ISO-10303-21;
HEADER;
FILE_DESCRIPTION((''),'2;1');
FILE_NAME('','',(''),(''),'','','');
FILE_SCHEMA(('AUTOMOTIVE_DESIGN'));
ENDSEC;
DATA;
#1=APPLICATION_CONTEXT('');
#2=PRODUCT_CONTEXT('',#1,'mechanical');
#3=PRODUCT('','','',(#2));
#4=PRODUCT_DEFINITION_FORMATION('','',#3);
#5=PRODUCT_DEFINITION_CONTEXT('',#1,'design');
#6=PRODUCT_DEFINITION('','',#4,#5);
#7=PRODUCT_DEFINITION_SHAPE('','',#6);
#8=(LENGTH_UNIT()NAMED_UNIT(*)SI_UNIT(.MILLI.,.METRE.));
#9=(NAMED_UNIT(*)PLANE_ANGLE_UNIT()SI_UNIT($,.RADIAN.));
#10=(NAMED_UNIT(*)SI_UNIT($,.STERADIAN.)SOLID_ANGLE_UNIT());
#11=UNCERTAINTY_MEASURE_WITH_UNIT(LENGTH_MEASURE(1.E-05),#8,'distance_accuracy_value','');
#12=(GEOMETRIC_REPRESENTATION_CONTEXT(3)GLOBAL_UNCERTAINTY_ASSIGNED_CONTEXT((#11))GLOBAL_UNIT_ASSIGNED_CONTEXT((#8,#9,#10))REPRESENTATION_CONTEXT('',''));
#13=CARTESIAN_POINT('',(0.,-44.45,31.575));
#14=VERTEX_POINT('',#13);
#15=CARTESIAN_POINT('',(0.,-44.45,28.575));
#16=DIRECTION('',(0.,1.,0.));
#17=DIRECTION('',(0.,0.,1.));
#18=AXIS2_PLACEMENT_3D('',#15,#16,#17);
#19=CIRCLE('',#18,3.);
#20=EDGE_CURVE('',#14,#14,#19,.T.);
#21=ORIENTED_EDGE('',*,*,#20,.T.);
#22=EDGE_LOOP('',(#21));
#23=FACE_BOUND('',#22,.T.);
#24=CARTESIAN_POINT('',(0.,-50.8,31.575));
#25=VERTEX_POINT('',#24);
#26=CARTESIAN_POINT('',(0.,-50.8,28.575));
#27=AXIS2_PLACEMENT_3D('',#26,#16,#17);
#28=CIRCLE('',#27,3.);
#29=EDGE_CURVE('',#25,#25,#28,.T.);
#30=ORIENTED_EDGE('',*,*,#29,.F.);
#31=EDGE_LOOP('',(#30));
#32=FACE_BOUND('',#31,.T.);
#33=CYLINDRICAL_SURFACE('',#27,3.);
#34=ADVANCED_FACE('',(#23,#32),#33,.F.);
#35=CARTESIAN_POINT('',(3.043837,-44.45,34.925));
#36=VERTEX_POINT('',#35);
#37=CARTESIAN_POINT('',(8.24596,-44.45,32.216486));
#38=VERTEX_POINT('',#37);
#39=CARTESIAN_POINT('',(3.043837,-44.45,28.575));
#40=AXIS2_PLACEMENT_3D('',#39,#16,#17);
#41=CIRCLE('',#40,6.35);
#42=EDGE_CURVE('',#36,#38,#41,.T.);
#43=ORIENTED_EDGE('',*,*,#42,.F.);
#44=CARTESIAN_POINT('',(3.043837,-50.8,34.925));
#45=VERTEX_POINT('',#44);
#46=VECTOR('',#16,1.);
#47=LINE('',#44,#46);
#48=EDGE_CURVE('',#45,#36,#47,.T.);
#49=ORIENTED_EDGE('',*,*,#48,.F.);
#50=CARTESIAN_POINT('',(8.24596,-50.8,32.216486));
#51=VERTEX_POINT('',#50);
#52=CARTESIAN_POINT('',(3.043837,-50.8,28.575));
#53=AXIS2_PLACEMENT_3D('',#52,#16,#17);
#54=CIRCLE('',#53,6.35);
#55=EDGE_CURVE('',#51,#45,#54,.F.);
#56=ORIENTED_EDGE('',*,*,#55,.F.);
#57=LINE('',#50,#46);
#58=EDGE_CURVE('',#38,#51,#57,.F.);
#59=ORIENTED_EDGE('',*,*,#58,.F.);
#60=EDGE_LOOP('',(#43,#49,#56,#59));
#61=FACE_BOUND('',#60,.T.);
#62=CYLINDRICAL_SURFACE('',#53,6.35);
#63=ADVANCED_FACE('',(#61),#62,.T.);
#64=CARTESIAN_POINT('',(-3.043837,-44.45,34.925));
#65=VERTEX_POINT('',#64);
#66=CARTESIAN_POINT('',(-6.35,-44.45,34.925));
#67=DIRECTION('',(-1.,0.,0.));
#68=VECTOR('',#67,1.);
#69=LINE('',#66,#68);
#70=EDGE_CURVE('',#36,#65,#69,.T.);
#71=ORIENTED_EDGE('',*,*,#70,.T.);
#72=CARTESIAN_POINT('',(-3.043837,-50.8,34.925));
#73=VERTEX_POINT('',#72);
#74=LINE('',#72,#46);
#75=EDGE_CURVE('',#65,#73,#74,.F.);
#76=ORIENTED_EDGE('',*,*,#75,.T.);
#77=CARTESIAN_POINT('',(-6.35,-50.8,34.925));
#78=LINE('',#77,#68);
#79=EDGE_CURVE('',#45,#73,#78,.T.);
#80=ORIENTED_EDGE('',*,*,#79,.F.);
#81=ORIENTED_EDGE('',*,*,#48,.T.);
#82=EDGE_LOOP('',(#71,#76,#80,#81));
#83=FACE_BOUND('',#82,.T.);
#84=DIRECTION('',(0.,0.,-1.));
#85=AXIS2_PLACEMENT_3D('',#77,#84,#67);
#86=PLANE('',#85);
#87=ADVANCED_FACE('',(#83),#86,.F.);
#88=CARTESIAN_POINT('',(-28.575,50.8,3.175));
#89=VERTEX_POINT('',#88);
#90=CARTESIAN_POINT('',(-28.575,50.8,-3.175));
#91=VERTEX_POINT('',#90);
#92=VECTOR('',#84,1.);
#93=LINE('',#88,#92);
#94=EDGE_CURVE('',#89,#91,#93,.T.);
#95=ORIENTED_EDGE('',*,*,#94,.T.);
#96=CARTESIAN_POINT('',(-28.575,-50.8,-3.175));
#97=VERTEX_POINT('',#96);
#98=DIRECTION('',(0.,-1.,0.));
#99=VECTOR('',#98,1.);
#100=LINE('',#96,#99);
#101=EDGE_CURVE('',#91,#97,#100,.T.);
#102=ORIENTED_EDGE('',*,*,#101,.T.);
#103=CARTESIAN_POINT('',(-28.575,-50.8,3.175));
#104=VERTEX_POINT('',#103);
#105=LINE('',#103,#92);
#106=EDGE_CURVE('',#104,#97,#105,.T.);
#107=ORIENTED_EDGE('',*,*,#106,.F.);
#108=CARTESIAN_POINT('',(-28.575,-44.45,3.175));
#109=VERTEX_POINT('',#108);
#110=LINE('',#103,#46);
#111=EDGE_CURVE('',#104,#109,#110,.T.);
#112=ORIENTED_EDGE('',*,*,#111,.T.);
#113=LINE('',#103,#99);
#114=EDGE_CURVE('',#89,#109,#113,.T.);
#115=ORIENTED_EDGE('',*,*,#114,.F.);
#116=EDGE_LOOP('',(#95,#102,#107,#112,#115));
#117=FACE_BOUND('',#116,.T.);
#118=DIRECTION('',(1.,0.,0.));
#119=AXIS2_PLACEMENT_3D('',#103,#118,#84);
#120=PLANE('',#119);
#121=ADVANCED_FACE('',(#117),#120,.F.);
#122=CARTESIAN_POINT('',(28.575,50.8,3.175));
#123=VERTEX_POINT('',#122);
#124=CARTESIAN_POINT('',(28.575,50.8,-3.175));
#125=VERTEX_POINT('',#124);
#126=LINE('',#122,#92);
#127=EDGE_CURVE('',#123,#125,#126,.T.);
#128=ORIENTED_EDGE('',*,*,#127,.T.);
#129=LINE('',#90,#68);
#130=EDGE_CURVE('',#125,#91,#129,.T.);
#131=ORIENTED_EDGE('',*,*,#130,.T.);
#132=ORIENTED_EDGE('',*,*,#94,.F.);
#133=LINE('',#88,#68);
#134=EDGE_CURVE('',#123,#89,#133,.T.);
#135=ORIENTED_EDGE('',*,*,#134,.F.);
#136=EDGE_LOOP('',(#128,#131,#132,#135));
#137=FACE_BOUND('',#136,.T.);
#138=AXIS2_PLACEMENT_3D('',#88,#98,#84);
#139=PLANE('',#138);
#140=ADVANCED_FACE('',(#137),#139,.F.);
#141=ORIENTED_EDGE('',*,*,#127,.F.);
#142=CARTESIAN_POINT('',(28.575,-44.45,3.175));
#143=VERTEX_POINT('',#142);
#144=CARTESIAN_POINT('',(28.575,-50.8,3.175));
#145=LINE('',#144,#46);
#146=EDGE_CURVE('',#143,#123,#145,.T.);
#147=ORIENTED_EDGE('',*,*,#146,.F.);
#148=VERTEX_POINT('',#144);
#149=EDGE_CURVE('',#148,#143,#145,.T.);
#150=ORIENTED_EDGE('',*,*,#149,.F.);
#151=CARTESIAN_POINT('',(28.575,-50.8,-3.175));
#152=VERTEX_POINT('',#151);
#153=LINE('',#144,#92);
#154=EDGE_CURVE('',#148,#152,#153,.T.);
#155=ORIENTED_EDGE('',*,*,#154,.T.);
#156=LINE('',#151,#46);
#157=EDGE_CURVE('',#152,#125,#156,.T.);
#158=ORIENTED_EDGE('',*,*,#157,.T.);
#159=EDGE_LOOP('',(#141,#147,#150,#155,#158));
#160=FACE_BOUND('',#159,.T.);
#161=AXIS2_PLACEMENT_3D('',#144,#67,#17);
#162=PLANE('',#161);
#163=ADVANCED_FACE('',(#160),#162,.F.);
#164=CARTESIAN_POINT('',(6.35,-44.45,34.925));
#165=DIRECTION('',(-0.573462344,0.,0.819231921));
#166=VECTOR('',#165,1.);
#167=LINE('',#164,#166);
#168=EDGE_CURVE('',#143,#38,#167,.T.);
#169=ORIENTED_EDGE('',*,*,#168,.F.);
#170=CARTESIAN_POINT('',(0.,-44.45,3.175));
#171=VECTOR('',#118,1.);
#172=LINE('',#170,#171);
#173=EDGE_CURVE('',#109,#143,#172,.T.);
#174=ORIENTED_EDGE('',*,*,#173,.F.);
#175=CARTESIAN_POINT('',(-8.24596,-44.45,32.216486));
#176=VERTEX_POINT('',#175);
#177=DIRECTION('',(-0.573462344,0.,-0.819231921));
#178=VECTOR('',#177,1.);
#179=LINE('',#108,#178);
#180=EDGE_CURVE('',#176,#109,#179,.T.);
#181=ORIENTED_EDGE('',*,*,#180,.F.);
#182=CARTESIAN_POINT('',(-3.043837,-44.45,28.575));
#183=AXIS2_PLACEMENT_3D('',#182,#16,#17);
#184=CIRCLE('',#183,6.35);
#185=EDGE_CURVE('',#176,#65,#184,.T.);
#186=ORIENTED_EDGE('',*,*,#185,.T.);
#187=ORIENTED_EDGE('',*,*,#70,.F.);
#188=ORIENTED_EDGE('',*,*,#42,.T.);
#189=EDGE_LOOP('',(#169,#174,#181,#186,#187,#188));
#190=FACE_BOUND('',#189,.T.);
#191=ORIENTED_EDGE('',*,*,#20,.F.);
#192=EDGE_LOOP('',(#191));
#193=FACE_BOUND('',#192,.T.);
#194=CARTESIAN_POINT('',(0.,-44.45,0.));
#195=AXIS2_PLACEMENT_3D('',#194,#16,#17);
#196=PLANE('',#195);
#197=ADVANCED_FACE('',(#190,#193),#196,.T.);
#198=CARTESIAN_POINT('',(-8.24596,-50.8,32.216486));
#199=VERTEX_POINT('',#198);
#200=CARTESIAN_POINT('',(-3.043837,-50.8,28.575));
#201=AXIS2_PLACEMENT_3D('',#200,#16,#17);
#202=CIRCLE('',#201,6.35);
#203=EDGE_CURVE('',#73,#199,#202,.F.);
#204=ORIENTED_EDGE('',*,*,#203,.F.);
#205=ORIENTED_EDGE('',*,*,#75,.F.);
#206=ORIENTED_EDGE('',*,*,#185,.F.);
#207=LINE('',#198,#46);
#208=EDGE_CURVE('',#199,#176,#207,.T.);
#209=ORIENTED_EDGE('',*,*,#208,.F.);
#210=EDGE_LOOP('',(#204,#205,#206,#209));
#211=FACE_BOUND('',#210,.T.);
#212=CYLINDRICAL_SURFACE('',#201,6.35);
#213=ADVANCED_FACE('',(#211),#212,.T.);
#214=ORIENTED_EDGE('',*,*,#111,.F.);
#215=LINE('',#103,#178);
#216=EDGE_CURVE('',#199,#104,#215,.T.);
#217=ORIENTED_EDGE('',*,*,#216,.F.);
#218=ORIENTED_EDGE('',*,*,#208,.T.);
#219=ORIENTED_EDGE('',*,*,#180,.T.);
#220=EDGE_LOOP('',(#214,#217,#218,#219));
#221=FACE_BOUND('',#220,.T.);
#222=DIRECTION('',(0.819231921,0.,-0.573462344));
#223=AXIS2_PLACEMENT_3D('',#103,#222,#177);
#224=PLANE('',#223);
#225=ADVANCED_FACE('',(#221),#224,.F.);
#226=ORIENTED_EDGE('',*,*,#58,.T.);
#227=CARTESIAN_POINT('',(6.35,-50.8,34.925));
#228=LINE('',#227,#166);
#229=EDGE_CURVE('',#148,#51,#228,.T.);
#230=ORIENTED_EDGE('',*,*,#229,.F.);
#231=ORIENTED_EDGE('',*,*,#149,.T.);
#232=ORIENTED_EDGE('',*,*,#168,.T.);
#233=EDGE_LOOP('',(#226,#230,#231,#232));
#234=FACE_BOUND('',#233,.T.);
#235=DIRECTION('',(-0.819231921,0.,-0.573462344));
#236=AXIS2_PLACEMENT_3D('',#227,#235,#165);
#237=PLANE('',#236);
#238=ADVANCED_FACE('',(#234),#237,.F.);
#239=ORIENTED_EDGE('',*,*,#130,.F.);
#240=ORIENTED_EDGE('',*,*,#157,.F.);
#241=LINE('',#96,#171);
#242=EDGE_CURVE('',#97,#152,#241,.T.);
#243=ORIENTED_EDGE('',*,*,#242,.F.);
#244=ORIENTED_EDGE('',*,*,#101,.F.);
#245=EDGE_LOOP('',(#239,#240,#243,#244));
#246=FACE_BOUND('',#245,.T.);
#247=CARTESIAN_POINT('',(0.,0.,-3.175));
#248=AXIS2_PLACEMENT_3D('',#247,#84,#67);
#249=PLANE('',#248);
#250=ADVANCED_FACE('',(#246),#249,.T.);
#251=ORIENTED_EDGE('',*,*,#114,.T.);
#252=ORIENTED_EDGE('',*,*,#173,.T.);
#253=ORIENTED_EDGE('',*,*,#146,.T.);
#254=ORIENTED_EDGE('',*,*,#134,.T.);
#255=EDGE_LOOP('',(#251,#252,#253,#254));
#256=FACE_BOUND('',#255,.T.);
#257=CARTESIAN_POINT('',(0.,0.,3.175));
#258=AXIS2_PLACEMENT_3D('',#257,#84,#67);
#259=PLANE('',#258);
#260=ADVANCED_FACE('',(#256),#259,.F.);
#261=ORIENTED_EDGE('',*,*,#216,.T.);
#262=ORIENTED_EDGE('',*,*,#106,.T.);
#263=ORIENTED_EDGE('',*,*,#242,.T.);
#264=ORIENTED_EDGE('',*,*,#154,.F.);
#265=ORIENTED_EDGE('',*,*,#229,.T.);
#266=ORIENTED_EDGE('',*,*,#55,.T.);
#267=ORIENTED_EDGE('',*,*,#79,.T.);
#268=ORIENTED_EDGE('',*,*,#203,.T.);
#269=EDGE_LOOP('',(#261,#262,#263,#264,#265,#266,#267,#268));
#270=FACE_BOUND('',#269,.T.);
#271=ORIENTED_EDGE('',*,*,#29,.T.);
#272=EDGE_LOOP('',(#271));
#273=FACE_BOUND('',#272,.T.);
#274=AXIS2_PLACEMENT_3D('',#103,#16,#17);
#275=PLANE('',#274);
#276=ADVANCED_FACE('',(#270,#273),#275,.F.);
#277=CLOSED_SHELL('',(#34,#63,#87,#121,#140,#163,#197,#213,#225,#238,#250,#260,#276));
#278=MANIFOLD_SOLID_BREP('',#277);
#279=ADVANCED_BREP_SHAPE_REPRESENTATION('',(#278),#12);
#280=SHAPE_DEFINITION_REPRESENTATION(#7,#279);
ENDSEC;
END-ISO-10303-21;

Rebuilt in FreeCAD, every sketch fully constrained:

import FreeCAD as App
import Part
import Sketcher
Q = App.Units.Quantity


def edges_at(feature, points):
    """Names of the edges that pass closest to the given points."""
    edges = feature.Shape.Edges
    near = lambda p: min(range(len(edges)), key=lambda i: edges[i].distToShape(Part.Vertex(*p))[0])
    return sorted({f"Edge{near(p) + 1}" for p in points})

doc = App.newDocument("Part")
body = doc.addObject("PartDesign::Body", "Body")

sketch1 = body.newObject("Sketcher::SketchObject", "Sketch")
sketch1.AttachmentSupport = (doc.getObject("XY_Plane"), [""])
sketch1.MapMode = "FlatFace"
sketch1.addGeometry([
    Part.LineSegment(App.Vector(-29, 51, 0), App.Vector(-29, -51, 0)),
    Part.LineSegment(App.Vector(-29, -51, 0), App.Vector(29, -51, 0)),
    Part.LineSegment(App.Vector(29, -51, 0), App.Vector(29, 51, 0)),
    Part.LineSegment(App.Vector(29, 51, 0), App.Vector(-29, 51, 0)),
], False)
sketch1.addConstraint([
    Sketcher.Constraint("Coincident", 0, 2, 1, 1),
    Sketcher.Constraint("Coincident", 1, 2, 2, 1),
    Sketcher.Constraint("Coincident", 2, 2, 3, 1),
    Sketcher.Constraint("Coincident", 3, 2, 0, 1),
    Sketcher.Constraint("Vertical", 0),
    Sketcher.Constraint("Horizontal", 1),
    Sketcher.Constraint("Vertical", 2),
    Sketcher.Constraint("Horizontal", 3),
    Sketcher.Constraint("Symmetric", 0, 2, 2, 2, -1, 1),
    Sketcher.Constraint("DistanceY", 0, 2, 0, 1, Q("4 in")),
    Sketcher.Constraint("DistanceX", 1, 1, 1, 2, Q("2.25 in")),
])
pad1 = body.newObject("PartDesign::Pad", "Pad")
pad1.Profile = sketch1
pad1.Length = Q("0.25 in")
pad1.Midplane = True

sketch2 = body.newObject("Sketcher::SketchObject", "Sketch001")
sketch2.AttachmentSupport = (doc.getObject("XZ_Plane"), [""])
sketch2.MapMode = "FlatFace"
sketch2.AttachmentOffset = App.Placement(App.Vector(0, 0, 2 * 25.4), App.Rotation())
sketch2.addGeometry([
    Part.LineSegment(App.Vector(-29, 54, 0), App.Vector(-29, -3, 0)),
    Part.LineSegment(App.Vector(-29, -3, 0), App.Vector(29, -3, 0)),
    Part.LineSegment(App.Vector(29, -3, 0), App.Vector(29, 54, 0)),
    Part.LineSegment(App.Vector(29, 54, 0), App.Vector(-29, 54, 0)),
], False)
sketch2.addConstraint([
    Sketcher.Constraint("Coincident", 0, 2, 1, 1),
    Sketcher.Constraint("Coincident", 1, 2, 2, 1),
    Sketcher.Constraint("Coincident", 2, 2, 3, 1),
    Sketcher.Constraint("Coincident", 3, 2, 0, 1),
    Sketcher.Constraint("Vertical", 0),
    Sketcher.Constraint("Horizontal", 1),
    Sketcher.Constraint("Vertical", 2),
    Sketcher.Constraint("Horizontal", 3),
    Sketcher.Constraint("Equal", 3, 0),
    Sketcher.Constraint("DistanceX", 1, 1, 1, 2, Q("2.25 in")),
    Sketcher.Constraint("DistanceX", 0, 2, -1, 1, Q("1.125 in")),
    Sketcher.Constraint("DistanceY", 0, 2, -1, 1, Q("0.125 in")),
])
pad2 = body.newObject("PartDesign::Pad", "Pad001")
pad2.Profile = sketch2
pad2.Length = Q("0.25 in")
pad2.Reversed = True

sketch3 = body.newObject("Sketcher::SketchObject", "Sketch002")
sketch3.AttachmentSupport = (doc.getObject("XZ_Plane"), [""])
sketch3.MapMode = "FlatFace"
sketch3.AttachmentOffset = App.Placement(App.Vector(0, 0, 1.75 * 25.4), App.Rotation())
sketch3.addGeometry(Part.Circle(App.Vector(0, 28.6, 0), App.Vector(0, 0, 1), 3), False)
sketch3.addConstraint([
    Sketcher.Constraint("PointOnObject", 0, 3, -2),
    Sketcher.Constraint("Diameter", 0, 6.0),
    Sketcher.Constraint("DistanceY", -1, 1, 0, 3, Q("1.125 in")),
])
pocket1 = body.newObject("PartDesign::Pocket", "Pocket")
pocket1.Profile = sketch3
pocket1.Type = "ThroughAll"
pocket1.Reversed = True

sketch4 = body.newObject("Sketcher::SketchObject", "Sketch003")
sketch4.AttachmentSupport = (doc.getObject("XZ_Plane"), [""])
sketch4.MapMode = "FlatFace"
sketch4.AttachmentOffset = App.Placement(App.Vector(0, 0, 1.75 * 25.4), App.Rotation())
sketch4.addGeometry([
    Part.LineSegment(App.Vector(-6, 35, 0), App.Vector(-29, 3, 0)),
    Part.LineSegment(App.Vector(-29, 3, 0), App.Vector(-29, 54, 0)),
    Part.LineSegment(App.Vector(-29, 54, 0), App.Vector(29, 54, 0)),
    Part.LineSegment(App.Vector(29, 54, 0), App.Vector(29, 3, 0)),
    Part.LineSegment(App.Vector(29, 3, 0), App.Vector(6, 35, 0)),
    Part.LineSegment(App.Vector(6, 35, 0), App.Vector(-6, 35, 0)),
], False)
sketch4.addConstraint([
    Sketcher.Constraint("Coincident", 0, 2, 1, 1),
    Sketcher.Constraint("Coincident", 1, 2, 2, 1),
    Sketcher.Constraint("Coincident", 2, 2, 3, 1),
    Sketcher.Constraint("Coincident", 3, 2, 4, 1),
    Sketcher.Constraint("Coincident", 4, 2, 5, 1),
    Sketcher.Constraint("Coincident", 5, 2, 0, 1),
    Sketcher.Constraint("Vertical", 1),
    Sketcher.Constraint("Horizontal", 2),
    Sketcher.Constraint("Vertical", 3),
    Sketcher.Constraint("Horizontal", 5),
    Sketcher.Constraint("Symmetric", 0, 2, 3, 2, -2),
    Sketcher.Constraint("Equal", 0, 4),
    Sketcher.Constraint("DistanceY", 1, 1, 1, 2, Q("2 in")),
    Sketcher.Constraint("DistanceX", 5, 2, 5, 1, Q("0.5 in")),
    Sketcher.Constraint("DistanceX", 2, 1, 2, 2, Q("2.25 in")),
    Sketcher.Constraint("DistanceY", 4, 2, 2, 2, Q("0.75 in")),
    Sketcher.Constraint("DistanceY", -1, 1, 0, 2, Q("0.125 in")),
])
pocket2 = body.newObject("PartDesign::Pocket", "Pocket001")
pocket2.Profile = sketch4
pocket2.Type = "ThroughAll"
pocket2.Reversed = True
doc.recompute()

fillet = body.newObject("PartDesign::Fillet", "Fillet")
fillet.Base = (pocket2, edges_at(pocket2, [(-6.35, -47.625, 34.925), (6.35, -47.625, 34.925)]))
fillet.Radius = Q("0.25 in")

doc.recompute()
